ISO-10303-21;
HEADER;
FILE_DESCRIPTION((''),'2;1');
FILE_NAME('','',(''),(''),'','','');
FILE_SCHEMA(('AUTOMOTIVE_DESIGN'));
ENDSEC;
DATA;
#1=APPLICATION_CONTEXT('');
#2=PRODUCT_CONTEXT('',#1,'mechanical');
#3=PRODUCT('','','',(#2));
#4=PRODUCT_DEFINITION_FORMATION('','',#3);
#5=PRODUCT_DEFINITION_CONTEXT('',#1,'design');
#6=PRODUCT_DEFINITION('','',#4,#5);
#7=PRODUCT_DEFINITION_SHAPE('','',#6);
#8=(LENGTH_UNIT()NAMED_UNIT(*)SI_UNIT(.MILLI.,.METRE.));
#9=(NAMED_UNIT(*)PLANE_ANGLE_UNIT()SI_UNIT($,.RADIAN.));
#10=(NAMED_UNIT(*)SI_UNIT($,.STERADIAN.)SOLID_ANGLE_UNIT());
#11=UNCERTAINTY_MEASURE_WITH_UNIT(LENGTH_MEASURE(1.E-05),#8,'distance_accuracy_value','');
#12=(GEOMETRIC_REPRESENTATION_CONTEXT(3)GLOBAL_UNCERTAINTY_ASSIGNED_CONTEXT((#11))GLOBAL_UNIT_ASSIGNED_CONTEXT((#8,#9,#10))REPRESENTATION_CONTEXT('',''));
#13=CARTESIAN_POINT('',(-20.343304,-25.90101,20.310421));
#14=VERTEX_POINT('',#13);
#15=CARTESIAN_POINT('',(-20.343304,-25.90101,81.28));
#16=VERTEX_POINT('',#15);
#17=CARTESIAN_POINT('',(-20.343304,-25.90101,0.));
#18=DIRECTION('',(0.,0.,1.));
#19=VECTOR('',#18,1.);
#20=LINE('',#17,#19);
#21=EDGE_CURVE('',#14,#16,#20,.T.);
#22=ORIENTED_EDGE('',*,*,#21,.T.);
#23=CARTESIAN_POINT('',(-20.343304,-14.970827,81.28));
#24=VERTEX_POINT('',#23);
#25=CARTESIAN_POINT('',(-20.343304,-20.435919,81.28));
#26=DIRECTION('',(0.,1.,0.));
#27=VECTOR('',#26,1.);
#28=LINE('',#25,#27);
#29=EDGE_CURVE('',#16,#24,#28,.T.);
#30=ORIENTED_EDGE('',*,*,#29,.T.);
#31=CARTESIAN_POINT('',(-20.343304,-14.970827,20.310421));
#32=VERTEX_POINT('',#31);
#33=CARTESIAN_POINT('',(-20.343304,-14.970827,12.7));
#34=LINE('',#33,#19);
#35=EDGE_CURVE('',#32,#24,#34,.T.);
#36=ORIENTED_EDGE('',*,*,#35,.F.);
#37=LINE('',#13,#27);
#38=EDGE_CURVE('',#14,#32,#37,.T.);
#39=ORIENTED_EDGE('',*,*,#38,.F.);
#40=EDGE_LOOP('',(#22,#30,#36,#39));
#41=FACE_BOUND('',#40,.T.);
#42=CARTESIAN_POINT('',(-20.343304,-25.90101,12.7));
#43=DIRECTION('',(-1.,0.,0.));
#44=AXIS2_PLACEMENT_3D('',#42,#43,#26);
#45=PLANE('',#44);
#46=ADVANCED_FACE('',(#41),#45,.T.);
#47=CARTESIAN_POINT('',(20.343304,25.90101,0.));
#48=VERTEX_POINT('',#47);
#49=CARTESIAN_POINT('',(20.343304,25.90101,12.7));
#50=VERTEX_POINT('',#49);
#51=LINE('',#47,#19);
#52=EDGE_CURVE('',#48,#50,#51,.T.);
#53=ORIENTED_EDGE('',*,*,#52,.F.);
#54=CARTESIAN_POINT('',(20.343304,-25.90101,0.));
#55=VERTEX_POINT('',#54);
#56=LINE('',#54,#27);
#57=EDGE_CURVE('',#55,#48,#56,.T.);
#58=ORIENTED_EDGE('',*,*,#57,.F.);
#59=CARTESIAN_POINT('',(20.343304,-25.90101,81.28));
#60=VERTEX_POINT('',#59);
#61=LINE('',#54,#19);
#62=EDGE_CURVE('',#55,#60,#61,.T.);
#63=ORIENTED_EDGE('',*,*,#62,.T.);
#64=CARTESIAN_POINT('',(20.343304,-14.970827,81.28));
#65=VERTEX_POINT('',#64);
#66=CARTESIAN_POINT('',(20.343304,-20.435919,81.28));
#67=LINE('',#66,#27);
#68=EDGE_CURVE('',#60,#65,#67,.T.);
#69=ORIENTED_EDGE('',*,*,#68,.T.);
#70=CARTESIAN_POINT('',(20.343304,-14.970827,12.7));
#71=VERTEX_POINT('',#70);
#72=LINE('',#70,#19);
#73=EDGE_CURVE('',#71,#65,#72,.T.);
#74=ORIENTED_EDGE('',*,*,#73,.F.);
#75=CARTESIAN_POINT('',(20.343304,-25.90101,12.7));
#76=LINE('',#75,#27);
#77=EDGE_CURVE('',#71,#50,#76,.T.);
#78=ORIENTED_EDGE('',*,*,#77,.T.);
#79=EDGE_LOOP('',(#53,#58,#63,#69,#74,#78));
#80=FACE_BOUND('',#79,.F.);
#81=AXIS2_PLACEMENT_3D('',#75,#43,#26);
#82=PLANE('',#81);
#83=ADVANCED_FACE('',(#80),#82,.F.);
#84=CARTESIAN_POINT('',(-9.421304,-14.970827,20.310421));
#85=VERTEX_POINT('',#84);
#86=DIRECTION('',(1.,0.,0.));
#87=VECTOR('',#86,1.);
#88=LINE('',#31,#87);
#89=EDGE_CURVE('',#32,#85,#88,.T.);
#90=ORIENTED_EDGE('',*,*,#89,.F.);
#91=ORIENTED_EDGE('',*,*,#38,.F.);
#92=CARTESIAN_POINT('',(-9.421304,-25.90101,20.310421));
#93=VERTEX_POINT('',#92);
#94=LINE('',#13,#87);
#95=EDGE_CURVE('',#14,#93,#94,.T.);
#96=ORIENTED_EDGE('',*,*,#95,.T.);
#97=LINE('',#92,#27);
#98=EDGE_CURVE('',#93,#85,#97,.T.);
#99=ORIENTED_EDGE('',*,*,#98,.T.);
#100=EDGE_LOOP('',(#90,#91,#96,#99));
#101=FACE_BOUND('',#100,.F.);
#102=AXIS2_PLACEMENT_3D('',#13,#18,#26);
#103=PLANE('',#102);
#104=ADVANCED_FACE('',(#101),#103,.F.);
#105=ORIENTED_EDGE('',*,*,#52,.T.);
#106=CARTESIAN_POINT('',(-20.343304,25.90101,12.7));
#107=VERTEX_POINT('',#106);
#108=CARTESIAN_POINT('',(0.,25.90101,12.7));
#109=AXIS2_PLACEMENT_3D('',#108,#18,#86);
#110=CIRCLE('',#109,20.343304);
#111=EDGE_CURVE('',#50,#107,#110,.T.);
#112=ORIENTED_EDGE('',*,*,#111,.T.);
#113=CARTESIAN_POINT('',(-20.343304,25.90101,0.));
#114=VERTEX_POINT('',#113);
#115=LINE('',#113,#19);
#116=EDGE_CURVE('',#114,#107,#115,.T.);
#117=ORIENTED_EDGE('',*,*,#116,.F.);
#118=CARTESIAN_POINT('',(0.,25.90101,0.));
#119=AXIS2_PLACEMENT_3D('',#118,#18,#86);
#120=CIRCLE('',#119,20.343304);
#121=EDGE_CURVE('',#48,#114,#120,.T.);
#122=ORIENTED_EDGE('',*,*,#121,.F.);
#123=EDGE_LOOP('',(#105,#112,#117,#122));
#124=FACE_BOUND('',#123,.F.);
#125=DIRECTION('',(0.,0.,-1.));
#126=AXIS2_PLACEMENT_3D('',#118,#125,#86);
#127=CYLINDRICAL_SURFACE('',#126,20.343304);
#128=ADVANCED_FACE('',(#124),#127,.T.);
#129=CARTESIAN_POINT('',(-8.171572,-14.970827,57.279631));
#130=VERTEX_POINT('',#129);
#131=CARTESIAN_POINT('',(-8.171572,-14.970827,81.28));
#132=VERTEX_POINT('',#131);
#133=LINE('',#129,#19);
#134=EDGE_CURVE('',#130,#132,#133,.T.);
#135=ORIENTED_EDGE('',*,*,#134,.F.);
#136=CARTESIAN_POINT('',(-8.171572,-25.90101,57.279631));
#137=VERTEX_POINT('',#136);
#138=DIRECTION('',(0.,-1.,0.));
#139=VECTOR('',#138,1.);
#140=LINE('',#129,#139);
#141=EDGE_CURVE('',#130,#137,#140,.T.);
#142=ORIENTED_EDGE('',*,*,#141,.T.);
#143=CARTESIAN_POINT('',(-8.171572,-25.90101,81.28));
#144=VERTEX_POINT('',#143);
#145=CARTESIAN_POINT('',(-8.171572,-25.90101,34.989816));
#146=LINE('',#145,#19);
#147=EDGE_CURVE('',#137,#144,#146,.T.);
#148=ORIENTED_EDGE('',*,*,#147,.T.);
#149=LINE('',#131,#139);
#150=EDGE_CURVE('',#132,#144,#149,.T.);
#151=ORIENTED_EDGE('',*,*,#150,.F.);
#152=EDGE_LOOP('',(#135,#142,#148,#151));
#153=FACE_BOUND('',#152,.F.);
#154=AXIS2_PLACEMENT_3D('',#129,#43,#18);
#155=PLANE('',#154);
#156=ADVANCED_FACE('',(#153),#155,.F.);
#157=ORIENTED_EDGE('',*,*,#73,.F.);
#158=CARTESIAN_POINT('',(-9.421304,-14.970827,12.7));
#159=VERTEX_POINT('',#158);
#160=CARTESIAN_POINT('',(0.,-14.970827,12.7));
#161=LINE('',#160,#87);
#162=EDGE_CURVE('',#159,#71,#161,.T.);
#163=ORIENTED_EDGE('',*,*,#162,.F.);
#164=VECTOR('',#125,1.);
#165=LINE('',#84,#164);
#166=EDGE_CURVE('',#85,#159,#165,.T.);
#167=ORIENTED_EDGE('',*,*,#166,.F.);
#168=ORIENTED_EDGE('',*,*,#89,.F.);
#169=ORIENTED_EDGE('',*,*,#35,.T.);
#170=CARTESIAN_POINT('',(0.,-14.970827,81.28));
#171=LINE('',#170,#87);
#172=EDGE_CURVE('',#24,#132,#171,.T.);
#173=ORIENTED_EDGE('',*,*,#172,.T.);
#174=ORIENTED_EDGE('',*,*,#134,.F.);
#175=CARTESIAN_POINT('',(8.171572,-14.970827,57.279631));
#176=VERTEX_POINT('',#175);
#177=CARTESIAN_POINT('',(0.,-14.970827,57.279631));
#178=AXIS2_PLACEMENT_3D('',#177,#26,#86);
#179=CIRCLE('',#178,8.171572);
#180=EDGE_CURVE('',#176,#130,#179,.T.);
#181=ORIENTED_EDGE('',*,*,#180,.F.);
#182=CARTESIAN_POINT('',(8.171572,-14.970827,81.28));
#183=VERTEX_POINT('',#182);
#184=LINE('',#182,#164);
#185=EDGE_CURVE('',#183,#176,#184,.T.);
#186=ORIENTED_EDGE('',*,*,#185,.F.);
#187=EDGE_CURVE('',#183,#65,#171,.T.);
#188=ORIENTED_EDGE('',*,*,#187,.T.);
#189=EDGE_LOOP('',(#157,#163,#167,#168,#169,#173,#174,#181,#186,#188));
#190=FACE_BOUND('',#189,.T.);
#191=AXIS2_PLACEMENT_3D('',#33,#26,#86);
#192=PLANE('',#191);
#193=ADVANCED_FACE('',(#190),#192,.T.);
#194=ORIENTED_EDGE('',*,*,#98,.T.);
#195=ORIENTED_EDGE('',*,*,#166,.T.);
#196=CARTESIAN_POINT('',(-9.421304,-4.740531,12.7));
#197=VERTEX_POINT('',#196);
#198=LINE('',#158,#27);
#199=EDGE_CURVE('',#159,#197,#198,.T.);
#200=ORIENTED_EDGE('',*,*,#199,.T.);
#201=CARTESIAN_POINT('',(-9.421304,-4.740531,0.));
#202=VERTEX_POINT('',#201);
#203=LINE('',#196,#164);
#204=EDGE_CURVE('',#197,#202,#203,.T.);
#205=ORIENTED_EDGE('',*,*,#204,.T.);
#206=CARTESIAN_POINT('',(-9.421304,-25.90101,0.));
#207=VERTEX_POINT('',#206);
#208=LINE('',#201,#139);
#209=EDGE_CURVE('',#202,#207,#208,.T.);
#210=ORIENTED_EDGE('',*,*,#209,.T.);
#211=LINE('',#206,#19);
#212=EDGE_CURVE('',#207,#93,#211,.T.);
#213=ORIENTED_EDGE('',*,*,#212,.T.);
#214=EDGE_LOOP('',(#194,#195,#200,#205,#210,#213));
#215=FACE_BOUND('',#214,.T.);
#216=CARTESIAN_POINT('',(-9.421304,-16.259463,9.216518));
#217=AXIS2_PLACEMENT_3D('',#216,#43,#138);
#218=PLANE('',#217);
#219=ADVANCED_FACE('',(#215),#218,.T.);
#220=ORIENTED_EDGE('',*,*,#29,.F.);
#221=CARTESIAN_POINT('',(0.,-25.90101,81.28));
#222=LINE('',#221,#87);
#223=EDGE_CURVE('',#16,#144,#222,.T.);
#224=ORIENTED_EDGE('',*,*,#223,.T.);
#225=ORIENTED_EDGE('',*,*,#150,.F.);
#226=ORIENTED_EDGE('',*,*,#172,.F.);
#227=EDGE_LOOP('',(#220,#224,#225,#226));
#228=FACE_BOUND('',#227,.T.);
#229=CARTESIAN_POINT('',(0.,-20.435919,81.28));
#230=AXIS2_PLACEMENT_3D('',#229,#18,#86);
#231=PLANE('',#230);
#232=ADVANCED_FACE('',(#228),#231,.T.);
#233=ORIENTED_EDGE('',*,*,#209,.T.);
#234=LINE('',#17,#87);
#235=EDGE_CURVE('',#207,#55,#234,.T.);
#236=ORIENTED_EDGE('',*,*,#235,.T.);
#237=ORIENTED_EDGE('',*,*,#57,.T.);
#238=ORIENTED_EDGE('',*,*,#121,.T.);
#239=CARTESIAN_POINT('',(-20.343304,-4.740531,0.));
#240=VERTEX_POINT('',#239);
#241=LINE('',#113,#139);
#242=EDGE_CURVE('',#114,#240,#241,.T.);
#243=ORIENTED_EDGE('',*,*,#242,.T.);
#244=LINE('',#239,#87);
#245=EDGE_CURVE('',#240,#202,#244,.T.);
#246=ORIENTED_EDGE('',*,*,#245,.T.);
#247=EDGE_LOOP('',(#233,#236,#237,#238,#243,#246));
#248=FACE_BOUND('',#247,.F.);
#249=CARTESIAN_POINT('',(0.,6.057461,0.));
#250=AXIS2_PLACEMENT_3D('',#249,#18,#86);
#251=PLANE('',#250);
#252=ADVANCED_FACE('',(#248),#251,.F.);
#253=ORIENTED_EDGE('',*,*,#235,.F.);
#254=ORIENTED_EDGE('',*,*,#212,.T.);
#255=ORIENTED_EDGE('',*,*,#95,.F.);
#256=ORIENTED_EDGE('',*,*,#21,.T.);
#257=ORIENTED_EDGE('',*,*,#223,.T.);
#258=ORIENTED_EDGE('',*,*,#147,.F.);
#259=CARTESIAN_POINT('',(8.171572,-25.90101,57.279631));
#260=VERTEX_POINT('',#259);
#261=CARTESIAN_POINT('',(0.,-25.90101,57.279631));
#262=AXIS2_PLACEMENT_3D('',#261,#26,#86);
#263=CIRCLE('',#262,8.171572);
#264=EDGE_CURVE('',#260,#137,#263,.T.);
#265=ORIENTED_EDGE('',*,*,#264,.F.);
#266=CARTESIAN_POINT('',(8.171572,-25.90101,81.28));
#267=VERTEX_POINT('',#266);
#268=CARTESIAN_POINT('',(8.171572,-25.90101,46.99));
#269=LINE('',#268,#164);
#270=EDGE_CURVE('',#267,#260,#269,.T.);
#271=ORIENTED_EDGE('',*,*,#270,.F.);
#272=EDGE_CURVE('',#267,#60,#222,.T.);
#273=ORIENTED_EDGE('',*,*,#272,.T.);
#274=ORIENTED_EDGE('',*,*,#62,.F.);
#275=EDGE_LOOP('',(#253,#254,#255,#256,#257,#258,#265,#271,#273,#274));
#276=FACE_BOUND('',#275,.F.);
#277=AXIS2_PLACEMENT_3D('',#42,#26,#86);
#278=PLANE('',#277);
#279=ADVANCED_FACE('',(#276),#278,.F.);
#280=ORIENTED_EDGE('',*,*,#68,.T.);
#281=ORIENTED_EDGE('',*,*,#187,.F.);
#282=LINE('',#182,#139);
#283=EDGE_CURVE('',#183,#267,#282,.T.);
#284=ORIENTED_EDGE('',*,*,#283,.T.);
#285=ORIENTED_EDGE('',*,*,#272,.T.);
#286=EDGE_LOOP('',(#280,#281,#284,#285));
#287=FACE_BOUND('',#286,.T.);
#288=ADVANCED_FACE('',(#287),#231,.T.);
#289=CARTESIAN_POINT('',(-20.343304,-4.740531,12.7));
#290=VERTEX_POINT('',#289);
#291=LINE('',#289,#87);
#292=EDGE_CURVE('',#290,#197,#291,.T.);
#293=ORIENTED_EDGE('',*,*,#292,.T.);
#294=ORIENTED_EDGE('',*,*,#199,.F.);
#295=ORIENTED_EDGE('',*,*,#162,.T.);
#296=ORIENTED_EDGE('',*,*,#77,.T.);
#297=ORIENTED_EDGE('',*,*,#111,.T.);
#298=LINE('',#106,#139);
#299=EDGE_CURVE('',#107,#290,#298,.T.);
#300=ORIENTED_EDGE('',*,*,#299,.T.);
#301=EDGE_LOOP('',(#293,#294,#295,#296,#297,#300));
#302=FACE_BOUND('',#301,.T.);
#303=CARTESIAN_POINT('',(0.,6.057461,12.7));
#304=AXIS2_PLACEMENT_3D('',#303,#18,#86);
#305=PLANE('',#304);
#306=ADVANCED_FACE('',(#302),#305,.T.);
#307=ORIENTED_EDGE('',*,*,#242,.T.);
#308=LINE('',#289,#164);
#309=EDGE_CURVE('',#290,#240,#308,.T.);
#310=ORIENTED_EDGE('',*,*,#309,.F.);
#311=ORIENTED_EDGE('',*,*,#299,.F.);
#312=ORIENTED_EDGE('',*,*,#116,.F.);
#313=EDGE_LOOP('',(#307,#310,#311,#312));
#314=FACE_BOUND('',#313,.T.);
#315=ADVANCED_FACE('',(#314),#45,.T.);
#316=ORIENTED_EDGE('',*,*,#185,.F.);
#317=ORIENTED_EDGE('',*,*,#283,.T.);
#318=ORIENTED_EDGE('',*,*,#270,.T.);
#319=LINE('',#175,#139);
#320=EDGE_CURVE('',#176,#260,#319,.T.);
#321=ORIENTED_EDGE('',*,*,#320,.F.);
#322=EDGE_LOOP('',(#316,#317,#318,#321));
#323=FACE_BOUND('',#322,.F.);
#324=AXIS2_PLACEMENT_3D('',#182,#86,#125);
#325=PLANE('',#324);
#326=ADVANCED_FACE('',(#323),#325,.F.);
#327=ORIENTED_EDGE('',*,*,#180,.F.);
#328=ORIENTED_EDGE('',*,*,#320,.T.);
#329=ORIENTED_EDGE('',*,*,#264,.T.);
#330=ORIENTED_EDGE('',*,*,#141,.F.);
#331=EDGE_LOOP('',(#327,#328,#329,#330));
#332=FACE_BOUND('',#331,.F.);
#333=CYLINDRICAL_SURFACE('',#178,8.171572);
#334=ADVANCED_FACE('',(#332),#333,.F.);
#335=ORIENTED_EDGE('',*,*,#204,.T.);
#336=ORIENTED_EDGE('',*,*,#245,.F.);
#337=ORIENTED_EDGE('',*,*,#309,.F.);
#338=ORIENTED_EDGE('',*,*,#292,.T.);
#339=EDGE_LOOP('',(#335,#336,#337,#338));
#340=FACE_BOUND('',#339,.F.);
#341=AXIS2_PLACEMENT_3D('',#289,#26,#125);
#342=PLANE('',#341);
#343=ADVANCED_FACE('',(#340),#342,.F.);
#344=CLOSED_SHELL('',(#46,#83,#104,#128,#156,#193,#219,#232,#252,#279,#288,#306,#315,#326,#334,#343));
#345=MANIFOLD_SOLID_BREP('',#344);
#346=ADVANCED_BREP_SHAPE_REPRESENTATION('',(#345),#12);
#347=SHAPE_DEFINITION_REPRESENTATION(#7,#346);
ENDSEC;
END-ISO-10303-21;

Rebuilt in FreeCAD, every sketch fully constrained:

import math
import FreeCAD as App
import Part
import Sketcher
from FreeCAD import Vector
Q = App.Units.Quantity


def add_polygon(sketch, points):
    """Adds a closed chain of lines whose ends are joined by coincident constraints."""
    first, n = sketch.GeometryCount, len(points)
    for a, b in zip(points, points[1:] + points[:1]):
        sketch.addGeometry(Part.LineSegment(App.Vector(*a, 0), App.Vector(*b, 0)), False)
    for i in range(n):
        sketch.addConstraint(Sketcher.Constraint("Coincident", first + i, 2, first + (i + 1) % n, 1))

doc = App.newDocument("Part")
body = doc.addObject("PartDesign::Body", "Body")

# Sketch on XY plane
sketch1 = body.newObject("Sketcher::SketchObject", "Sketch")
sketch1.AttachmentSupport = (doc.getObject("XY_Plane"), [""])
sketch1.MapMode = "FlatFace"
sketch1.addGeometry([
    Part.LineSegment(Vector(-20, -26, 0), Vector(20, -26, 0)),
    Part.LineSegment(Vector(20, -26, 0), Vector(20, 26, 0)),
    Part.ArcOfCircle(Part.Circle(Vector(0, 26, 0), Vector(0, 0, 1), 20), math.radians(0), math.radians(180)),
    Part.LineSegment(Vector(-20, 26, 0), Vector(-20, -26, 0)),
], False)
sketch1.addConstraint([
    Sketcher.Constraint("Coincident", 0, 2, 1, 1),
    Sketcher.Constraint("Tangent", 1, 2, 2, 1),
    Sketcher.Constraint("Tangent", 2, 2, 3, 1),
    Sketcher.Constraint("Coincident", 3, 2, 0, 1),
    Sketcher.Constraint("Horizontal", 0),
    Sketcher.Constraint("Vertical", 1),
    Sketcher.Constraint("Vertical", 3),
    Sketcher.Constraint("Symmetric", 0, 2, 2, 2, -1, 1),
    Sketcher.Constraint("Radius", 2, Q("20.343304 mm")),
    Sketcher.Constraint("DistanceY", 1, 1, 1, 2, Q("51.802021 mm")),
])
pad1 = body.newObject("PartDesign::Pad", "Pad")
pad1.Profile = sketch1
pad1.Length = Q("0.5 in")

# Sketch on XY plane
sketch2 = body.newObject("Sketcher::SketchObject", "Sketch001")
sketch2.AttachmentSupport = (doc.getObject("XY_Plane"), [""])
sketch2.MapMode = "FlatFace"
sketch2.AttachmentOffset = App.Placement(Vector(0, 0, 0.5 * 25.4), App.Rotation())
add_polygon(sketch2, [(-20, -15), (-20, -26), (20, -26), (20, -15)])  # lines 0-3
sketch2.addConstraint([
    Sketcher.Constraint("Vertical", 0),
    Sketcher.Constraint("Horizontal", 1),
    Sketcher.Constraint("Vertical", 2),
    Sketcher.Constraint("Horizontal", 3),
    Sketcher.Constraint("DistanceX", 1, 1, 1, 2, Q("40.686607 mm")),
    Sketcher.Constraint("DistanceY", 0, 2, 0, 1, Q("10.930183 mm")),
    Sketcher.Constraint("DistanceY", 0, 2, -1, 1, Q("25.90101 mm")),
    Sketcher.Constraint("DistanceX", 0, 2, -1, 1, Q("20.343304 mm")),
])
pad2 = body.newObject("PartDesign::Pad", "Pad001")
pad2.Profile = sketch2
pad2.Length = Q("2.7 in")

# Sketch on XZ plane
sketch3 = body.newObject("Sketcher::SketchObject", "Sketch002")
sketch3.AttachmentSupport = (doc.getObject("XZ_Plane"), [""])
sketch3.MapMode = "FlatFace"
sketch3.AttachmentOffset = App.Placement(Vector(0, 0, 14.970827), App.Rotation())
sketch3.addGeometry([
    Part.LineSegment(Vector(-8, 81, 0), Vector(8, 81, 0)),
    Part.LineSegment(Vector(8, 81, 0), Vector(8, 57, 0)),
    Part.ArcOfCircle(Part.Circle(Vector(0, 57, 0), Vector(0, 0, 1), 8), math.radians(-180), math.radians(0)),
    Part.LineSegment(Vector(-8, 57, 0), Vector(-8, 81, 0)),
], False)
sketch3.addConstraint([
    Sketcher.Constraint("Coincident", 0, 2, 1, 1),
    Sketcher.Constraint("Tangent", 1, 2, 2, 2),
    Sketcher.Constraint("Tangent", 2, 1, 3, 1),
    Sketcher.Constraint("Coincident", 3, 2, 0, 1),
    Sketcher.Constraint("Horizontal", 0),
    Sketcher.Constraint("Vertical", 1),
    Sketcher.Constraint("Vertical", 3),
    Sketcher.Constraint("PointOnObject", 2, 3, -2),
    Sketcher.Constraint("DistanceY", -1, 1, 0, 2, Q("3.2 in")),
    Sketcher.Constraint("Radius", 2, Q("8.171572 mm")),
    Sketcher.Constraint("DistanceY", 1, 2, 1, 1, Q("24.000369 mm")),
])
pocket1 = body.newObject("PartDesign::Pocket", "Pocket")
pocket1.Profile = sketch3
pocket1.Length = Q("1 in")
pocket1.Reversed = True

# Sketch on YZ plane
sketch4 = body.newObject("Sketcher::SketchObject", "Sketch003")
sketch4.AttachmentSupport = (doc.getObject("YZ_Plane"), [""])
sketch4.MapMode = "FlatFace"
sketch4.AttachmentOffset = App.Placement(Vector(0, 0, -20.343304), App.Rotation())
add_polygon(sketch4, [(-5, 0), (-26, 0), (-26, 20), (-15, 20), (-15, 13), (-5, 13)])  # lines 0-5
sketch4.addConstraint([
    Sketcher.Constraint("Horizontal", 0),
    Sketcher.Constraint("Vertical", 1),
    Sketcher.Constraint("Horizontal", 2),
    Sketcher.Constraint("Vertical", 3),
    Sketcher.Constraint("Horizontal", 4),
    Sketcher.Constraint("Vertical", 5),
    Sketcher.Constraint("PointOnObject", 0, 2, -1),
    Sketcher.Constraint("DistanceY", 5, 2, 5, 1, Q("0.5 in")),
    Sketcher.Constraint("DistanceX", 0, 2, 0, 1, Q("21.160479 mm")),
    Sketcher.Constraint("DistanceY", 1, 1, 1, 2, Q("20.310421 mm")),
    Sketcher.Constraint("DistanceX", 2, 1, 2, 2, Q("10.930183 mm")),
    Sketcher.Constraint("DistanceX", 0, 2, -1, 1, Q("25.90101 mm")),
])
pocket2 = body.newObject("PartDesign::Pocket", "Pocket001")
pocket2.Profile = sketch4
pocket2.Length = Q("0.43 in")
pocket2.Reversed = True

doc.recompute()
